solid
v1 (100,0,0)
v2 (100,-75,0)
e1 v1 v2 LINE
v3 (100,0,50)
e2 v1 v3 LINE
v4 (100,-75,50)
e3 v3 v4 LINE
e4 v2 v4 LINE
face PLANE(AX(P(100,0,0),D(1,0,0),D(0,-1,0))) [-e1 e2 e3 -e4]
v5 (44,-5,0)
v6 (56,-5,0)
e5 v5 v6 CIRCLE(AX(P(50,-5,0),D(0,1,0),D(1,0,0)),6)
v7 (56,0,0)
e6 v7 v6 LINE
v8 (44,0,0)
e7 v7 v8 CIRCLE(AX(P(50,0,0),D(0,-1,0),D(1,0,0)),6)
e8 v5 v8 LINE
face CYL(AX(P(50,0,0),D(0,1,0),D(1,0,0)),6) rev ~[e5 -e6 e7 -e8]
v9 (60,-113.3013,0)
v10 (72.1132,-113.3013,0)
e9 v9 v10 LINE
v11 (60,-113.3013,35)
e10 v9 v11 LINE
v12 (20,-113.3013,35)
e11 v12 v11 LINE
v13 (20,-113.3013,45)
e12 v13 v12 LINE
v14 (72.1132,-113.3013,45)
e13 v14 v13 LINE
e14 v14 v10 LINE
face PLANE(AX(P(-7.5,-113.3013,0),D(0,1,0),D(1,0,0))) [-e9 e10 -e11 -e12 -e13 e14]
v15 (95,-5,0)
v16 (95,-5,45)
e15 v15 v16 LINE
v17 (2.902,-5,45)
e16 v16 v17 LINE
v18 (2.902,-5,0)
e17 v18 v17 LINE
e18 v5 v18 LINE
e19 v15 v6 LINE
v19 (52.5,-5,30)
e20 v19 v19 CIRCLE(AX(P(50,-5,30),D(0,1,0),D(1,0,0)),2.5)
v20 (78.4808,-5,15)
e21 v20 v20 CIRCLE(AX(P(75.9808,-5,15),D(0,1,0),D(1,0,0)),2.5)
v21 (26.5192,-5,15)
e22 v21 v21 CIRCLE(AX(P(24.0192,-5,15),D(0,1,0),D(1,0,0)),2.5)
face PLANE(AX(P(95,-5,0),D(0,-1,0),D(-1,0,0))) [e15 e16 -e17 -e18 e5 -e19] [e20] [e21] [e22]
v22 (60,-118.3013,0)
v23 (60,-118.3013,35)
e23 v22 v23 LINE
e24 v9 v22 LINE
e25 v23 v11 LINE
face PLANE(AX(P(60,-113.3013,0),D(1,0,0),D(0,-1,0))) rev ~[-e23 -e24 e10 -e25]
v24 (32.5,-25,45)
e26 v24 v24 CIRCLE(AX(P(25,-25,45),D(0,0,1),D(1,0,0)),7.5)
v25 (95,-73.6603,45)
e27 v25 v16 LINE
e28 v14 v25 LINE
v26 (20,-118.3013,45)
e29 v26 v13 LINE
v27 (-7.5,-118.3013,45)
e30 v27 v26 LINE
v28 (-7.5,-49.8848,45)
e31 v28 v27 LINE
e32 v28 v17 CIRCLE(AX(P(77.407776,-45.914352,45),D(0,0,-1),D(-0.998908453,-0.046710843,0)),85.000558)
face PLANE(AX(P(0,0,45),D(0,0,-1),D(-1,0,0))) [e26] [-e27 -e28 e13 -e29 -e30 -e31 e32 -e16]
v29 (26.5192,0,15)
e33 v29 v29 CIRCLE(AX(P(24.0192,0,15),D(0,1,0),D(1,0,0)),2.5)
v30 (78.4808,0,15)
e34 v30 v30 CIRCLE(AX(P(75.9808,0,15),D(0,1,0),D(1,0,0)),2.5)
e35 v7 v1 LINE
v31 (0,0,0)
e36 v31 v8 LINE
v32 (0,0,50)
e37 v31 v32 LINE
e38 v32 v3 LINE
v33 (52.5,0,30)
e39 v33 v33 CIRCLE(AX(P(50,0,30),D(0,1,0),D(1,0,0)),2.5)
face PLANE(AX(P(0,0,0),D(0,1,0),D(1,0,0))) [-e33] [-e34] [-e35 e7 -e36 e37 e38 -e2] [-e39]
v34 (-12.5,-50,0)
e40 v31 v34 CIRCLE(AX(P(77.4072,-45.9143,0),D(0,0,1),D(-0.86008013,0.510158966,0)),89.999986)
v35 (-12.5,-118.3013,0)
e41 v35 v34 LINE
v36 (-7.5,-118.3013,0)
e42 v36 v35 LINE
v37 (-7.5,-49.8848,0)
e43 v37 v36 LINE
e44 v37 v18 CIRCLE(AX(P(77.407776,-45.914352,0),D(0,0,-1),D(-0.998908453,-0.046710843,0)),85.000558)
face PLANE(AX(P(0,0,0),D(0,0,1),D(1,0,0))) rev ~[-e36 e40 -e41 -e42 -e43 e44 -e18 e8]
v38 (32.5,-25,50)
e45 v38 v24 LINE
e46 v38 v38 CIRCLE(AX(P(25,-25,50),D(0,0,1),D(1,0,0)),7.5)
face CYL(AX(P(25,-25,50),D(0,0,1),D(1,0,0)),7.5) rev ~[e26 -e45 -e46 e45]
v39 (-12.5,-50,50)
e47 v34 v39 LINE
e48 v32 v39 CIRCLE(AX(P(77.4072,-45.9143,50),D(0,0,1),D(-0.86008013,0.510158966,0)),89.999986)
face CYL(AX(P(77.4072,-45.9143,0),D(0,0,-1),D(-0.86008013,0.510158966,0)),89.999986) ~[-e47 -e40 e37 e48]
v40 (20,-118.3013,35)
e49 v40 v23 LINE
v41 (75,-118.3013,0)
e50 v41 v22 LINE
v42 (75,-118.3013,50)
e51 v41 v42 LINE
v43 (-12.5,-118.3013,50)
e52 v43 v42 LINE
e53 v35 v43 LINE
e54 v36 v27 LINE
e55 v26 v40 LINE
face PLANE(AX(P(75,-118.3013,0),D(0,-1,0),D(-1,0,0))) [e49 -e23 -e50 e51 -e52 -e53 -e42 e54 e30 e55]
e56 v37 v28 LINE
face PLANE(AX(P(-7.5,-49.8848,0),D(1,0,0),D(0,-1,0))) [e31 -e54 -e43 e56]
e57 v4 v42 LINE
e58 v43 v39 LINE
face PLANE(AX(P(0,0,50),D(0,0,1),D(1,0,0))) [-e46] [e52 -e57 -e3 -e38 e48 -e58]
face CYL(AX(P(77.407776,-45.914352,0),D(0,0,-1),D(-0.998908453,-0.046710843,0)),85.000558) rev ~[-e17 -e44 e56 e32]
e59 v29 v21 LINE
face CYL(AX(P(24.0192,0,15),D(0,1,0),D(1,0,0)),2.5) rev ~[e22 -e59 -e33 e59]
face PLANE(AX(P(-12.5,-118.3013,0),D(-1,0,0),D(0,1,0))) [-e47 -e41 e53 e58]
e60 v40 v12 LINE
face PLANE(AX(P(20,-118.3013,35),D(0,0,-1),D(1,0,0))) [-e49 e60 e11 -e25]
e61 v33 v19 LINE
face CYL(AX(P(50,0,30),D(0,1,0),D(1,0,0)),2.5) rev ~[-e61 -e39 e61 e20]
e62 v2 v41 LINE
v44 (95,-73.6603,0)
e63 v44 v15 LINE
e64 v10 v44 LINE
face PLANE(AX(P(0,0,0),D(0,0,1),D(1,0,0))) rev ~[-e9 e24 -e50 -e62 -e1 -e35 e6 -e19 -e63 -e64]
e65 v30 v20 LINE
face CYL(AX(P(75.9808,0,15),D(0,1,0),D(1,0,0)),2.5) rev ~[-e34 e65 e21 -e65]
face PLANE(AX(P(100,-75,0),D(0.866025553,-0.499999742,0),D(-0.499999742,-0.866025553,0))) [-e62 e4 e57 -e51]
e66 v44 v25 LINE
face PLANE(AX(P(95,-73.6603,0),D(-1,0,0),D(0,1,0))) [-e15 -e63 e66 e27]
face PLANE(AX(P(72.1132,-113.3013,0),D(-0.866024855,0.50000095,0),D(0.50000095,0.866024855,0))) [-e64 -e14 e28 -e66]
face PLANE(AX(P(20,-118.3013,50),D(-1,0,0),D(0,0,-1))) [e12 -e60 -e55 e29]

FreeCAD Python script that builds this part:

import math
import FreeCAD as App
import Part
import Sketcher
from FreeCAD import Vector
Q = App.Units.Quantity

doc = App.newDocument("Part")
body = doc.addObject("PartDesign::Body", "Body")

# Sketch on XY plane
sketch1 = doc.addObject("Sketcher::SketchObject", "Sketch")
body.addObject(sketch1)
sketch1.AttachmentSupport = (doc.XY_Plane, [""])
sketch1.MapMode = "FlatFace"
sketch1.addGeometry(Part.LineSegment(Vector(100, 0, 0), Vector(0, 0, 0)), False)
sketch1.addGeometry(Part.ArcOfCircle(Part.Circle(Vector(77.4072, -45.9143, 0), Vector(0, 0, 1), 89.999986), math.radians(149.325581), math.radians(182.601932)), False)
sketch1.addGeometry(Part.LineSegment(Vector(-12.5, -50, 0), Vector(-12.5, -118.3013, 0)), False)
sketch1.addGeometry(Part.LineSegment(Vector(-12.5, -118.3013, 0), Vector(75, -118.3013, 0)), False)
sketch1.addGeometry(Part.LineSegment(Vector(75, -118.3013, 0), Vector(100, -75, 0)), False)
sketch1.addGeometry(Part.LineSegment(Vector(100, -75, 0), Vector(100, 0, 0)), False)
sketch1.addConstraint(Sketcher.Constraint("Coincident", 0, 2, 1, 1))
sketch1.addConstraint(Sketcher.Constraint("Coincident", 1, 2, 2, 1))
sketch1.addConstraint(Sketcher.Constraint("Coincident", 2, 2, 3, 1))
sketch1.addConstraint(Sketcher.Constraint("Coincident", 3, 2, 4, 1))
sketch1.addConstraint(Sketcher.Constraint("Coincident", 4, 2, 5, 1))
sketch1.addConstraint(Sketcher.Constraint("Coincident", 5, 2, 0, 1))
sketch1.addConstraint(Sketcher.Constraint("Horizontal", 0))
sketch1.addConstraint(Sketcher.Constraint("Vertical", 2))
sketch1.addConstraint(Sketcher.Constraint("Horizontal", 3))
sketch1.addConstraint(Sketcher.Constraint("Vertical", 5))
sketch1.addConstraint(Sketcher.Constraint("Coincident", 0, 2, -1, 1))
sketch1.addConstraint(Sketcher.Constraint("Radius", 1, Q("90 mm")))
sketch1.addConstraint(Sketcher.Constraint("DistanceX", 0, 2, 0, 1, Q("100 mm")))
sketch1.addConstraint(Sketcher.Constraint("DistanceY", 5, 1, 5, 2, Q("75 mm")))
sketch1.addConstraint(Sketcher.Constraint("Distance", 4, Q("50 mm")))
sketch1.addConstraint(Sketcher.Constraint("DistanceY", 1, 2, -1, 1, Q("50 mm")))
sketch1.addConstraint(Sketcher.Constraint("DistanceX", -1, 1, 3, 2, Q("75 mm")))
sketch1.addConstraint(Sketcher.Constraint("DistanceX", 1, 2, -1, 1, Q("12.5 mm")))
pad1 = doc.addObject("PartDesign::Pad", "Pad")
body.addObject(pad1)
pad1.Profile = sketch1
pad1.Length = 50

# Sketch on XY plane
sketch2 = doc.addObject("Sketcher::SketchObject", "Sketch001")
body.addObject(sketch2)
sketch2.AttachmentSupport = (doc.XY_Plane, [""])
sketch2.MapMode = "FlatFace"
sketch2.addGeometry(Part.LineSegment(Vector(95, -5, 0), Vector(95, -73.6603, 0)), False)
sketch2.addGeometry(Part.LineSegment(Vector(95, -73.6603, 0), Vector(72.1132, -113.3013, 0)), False)
sketch2.addGeometry(Part.LineSegment(Vector(72.1132, -113.3013, 0), Vector(-7.5, -113.3013, 0)), False)
sketch2.addGeometry(Part.LineSegment(Vector(-7.5, -113.3013, 0), Vector(-7.5, -49.8848, 0)), False)
sketch2.addGeometry(Part.ArcOfCircle(Part.Circle(Vector(77.4072, -45.9143, 0), Vector(0, 0, 1), 84.999985), math.radians(151.226747), math.radians(182.677362)), False)
sketch2.addGeometry(Part.LineSegment(Vector(2.902, -5, 0), Vector(95, -5, 0)), False)
sketch2.addConstraint(Sketcher.Constraint("Coincident", 0, 2, 1, 1))
sketch2.addConstraint(Sketcher.Constraint("Coincident", 1, 2, 2, 1))
sketch2.addConstraint(Sketcher.Constraint("Coincident", 2, 2, 3, 1))
sketch2.addConstraint(Sketcher.Constraint("Coincident", 3, 2, 4, 2))
sketch2.addConstraint(Sketcher.Constraint("Coincident", 4, 1, 5, 1))
sketch2.addConstraint(Sketcher.Constraint("Coincident", 5, 2, 0, 1))
sketch2.addConstraint(Sketcher.Constraint("Vertical", 0))
sketch2.addConstraint(Sketcher.Constraint("Horizontal", 2))
sketch2.addConstraint(Sketcher.Constraint("Vertical", 3))
sketch2.addConstraint(Sketcher.Constraint("Horizontal", 5))
sketch2.addConstraint(Sketcher.Constraint("DistanceY", 4, 1, -1, 1, Q("5 mm")))
sketch2.addConstraint(Sketcher.Constraint("Radius", 4, Q("85 mm")))
sketch2.addConstraint(Sketcher.Constraint("Angle", 1, Q("-120 deg")))
sketch2.addConstraint(Sketcher.Constraint("DistanceX", -1, 1, 0, 2, Q("95 mm")))
sketch2.addConstraint(Sketcher.Constraint("DistanceX", 2, 2, -1, 1, Q("7.5 mm")))
sketch2.addConstraint(Sketcher.Constraint("DistanceX", 5, 1, 5, 2, Q("92.098 mm")))
sketch2.addConstraint(Sketcher.Constraint("DistanceX", 2, 2, 2, 1, Q("79.6132 mm")))
sketch2.addConstraint(Sketcher.Constraint("DistanceY", 0, 2, 0, 1, Q("68.6603 mm")))
sketch2.addConstraint(Sketcher.Constraint("DistanceY", 3, 1, 3, 2, Q("63.4165 mm")))
pocket1 = doc.addObject("PartDesign::Pocket", "Pocket")
body.addObject(pocket1)
pocket1.Profile = sketch2
pocket1.Length = 45
pocket1.Reversed = True

# Sketch on XY plane
sketch3 = doc.addObject("Sketcher::SketchObject", "Sketch002")
body.addObject(sketch3)
sketch3.AttachmentSupport = (doc.XY_Plane, [""])
sketch3.MapMode = "FlatFace"
sketch3.addGeometry(Part.LineSegment(Vector(-7.5, -118.3013, 0), Vector(-7.5, -113.3013, 0)), False)
sketch3.addGeometry(Part.LineSegment(Vector(-7.5, -113.3013, 0), Vector(60, -113.3013, 0)), False)
sketch3.addGeometry(Part.LineSegment(Vector(60, -113.3013, 0), Vector(60, -118.3013, 0)), False)
sketch3.addGeometry(Part.LineSegment(Vector(60, -118.3013, 0), Vector(-7.5, -118.3013, 0)), False)
sketch3.addConstraint(Sketcher.Constraint("Coincident", 0, 2, 1, 1))
sketch3.addConstraint(Sketcher.Constraint("Coincident", 1, 2, 2, 1))
sketch3.addConstraint(Sketcher.Constraint("Coincident", 2, 2, 3, 1))
sketch3.addConstraint(Sketcher.Constraint("Coincident", 3, 2, 0, 1))
sketch3.addConstraint(Sketcher.Constraint("Vertical", 0))
sketch3.addConstraint(Sketcher.Constraint("Horizontal", 1))
sketch3.addConstraint(Sketcher.Constraint("Vertical", 2))
sketch3.addConstraint(Sketcher.Constraint("Horizontal", 3))
sketch3.addConstraint(Sketcher.Constraint("DistanceY", 0, 1, 0, 2, Q("5 mm")))
sketch3.addConstraint(Sketcher.Constraint("DistanceX", 1, 1, 1, 2, Q("67.5 mm")))
sketch3.addConstraint(Sketcher.Constraint("DistanceX", -1, 1, 1, 2, Q("60 mm")))
sketch3.addConstraint(Sketcher.Constraint("DistanceY", 0, 2, -1, 1, Q("113.3013 mm")))
pocket2 = doc.addObject("PartDesign::Pocket", "Pocket001")
body.addObject(pocket2)
pocket2.Profile = sketch3
pocket2.Length = 45
pocket2.Reversed = True

# Sketch on XZ plane
sketch4 = doc.addObject("Sketcher::SketchObject", "Sketch003")
body.addObject(sketch4)
sketch4.AttachmentSupport = (doc.XZ_Plane, [""])
sketch4.MapMode = "FlatFace"
sketch4.addGeometry(Part.Circle(Vector(50, 0, 0), Vector(0, 0, 1), 6), False)
sketch4.addConstraint(Sketcher.Constraint("PointOnObject", 0, 3, -1))
sketch4.addConstraint(Sketcher.Constraint("Diameter", 0, Q("12 mm")))
sketch4.addConstraint(Sketcher.Constraint("DistanceX", -1, 1, 0, 3, Q("50 mm")))
pocket3 = doc.addObject("PartDesign::Pocket", "Pocket002")
body.addObject(pocket3)
pocket3.Profile = sketch4
pocket3.Type = "ThroughAll"
pocket3.Reversed = True

# Sketch on XZ plane
sketch5 = doc.addObject("Sketcher::SketchObject", "Sketch004")
body.addObject(sketch5)
sketch5.AttachmentSupport = (doc.XZ_Plane, [""])
sketch5.MapMode = "FlatFace"
sketch5.addGeometry(Part.Circle(Vector(50, 30, 0), Vector(0, 0, 1), 2.5), False)
sketch5.addGeometry(Part.Circle(Vector(75.9808, 15, 0), Vector(0, 0, 1), 2.5), False)
sketch5.addGeometry(Part.Circle(Vector(24.0192, 15, 0), Vector(0, 0, 1), 2.5), False)
sketch5.addConstraint(Sketcher.Constraint("Equal", 0, 1))
sketch5.addConstraint(Sketcher.Constraint("Equal", 1, 2))
sketch5.addConstraint(Sketcher.Constraint("Horizontal", 1, 3, 2, 3))
sketch5.addConstraint(Sketcher.Constraint("Diameter", 0, Q("5 mm")))
sketch5.addConstraint(Sketcher.Constraint("DistanceX", -1, 1, 0, 3, Q("50 mm")))
sketch5.addConstraint(Sketcher.Constraint("DistanceY", -1, 1, 0, 3, Q("30 mm")))
sketch5.addConstraint(Sketcher.Constraint("DistanceY", -1, 1, 1, 3, Q("15 mm")))
sketch5.addConstraint(Sketcher.Constraint("DistanceX", -1, 1, 1, 3, Q("75.9808 mm")))
sketch5.addConstraint(Sketcher.Constraint("DistanceX", -1, 1, 2, 3, Q("24.0192 mm")))
pocket4 = doc.addObject("PartDesign::Pocket", "Pocket003")
body.addObject(pocket4)
pocket4.Profile = sketch5
pocket4.Length = 5
pocket4.Reversed = True

# Sketch on XY plane
sketch6 = doc.addObject("Sketcher::SketchObject", "Sketch005")
body.addObject(sketch6)
sketch6.AttachmentSupport = (doc.XY_Plane, [""])
sketch6.MapMode = "FlatFace"
sketch6.AttachmentOffset = App.Placement(Vector(0, 0, 50), App.Rotation())
sketch6.addGeometry(Part.Circle(Vector(25, -25, 0), Vector(0, 0, 1), 7.5), False)
sketch6.addConstraint(Sketcher.Constraint("Diameter", 0, Q("15 mm")))
sketch6.addConstraint(Sketcher.Constraint("DistanceX", -1, 1, 0, 3, Q("25 mm")))
sketch6.addConstraint(Sketcher.Constraint("DistanceY", 0, 3, -1, 1, Q("25 mm")))
pocket5 = doc.addObject("PartDesign::Pocket", "Pocket004")
body.addObject(pocket5)
pocket5.Profile = sketch6
pocket5.Length = 5

# Sketch on XZ plane
sketch7 = doc.addObject("Sketcher::SketchObject", "Sketch006")
body.addObject(sketch7)
sketch7.AttachmentSupport = (doc.XZ_Plane, [""])
sketch7.MapMode = "FlatFace"
sketch7.AttachmentOffset = App.Placement(Vector(0, 0, 118.3013), App.Rotation())
sketch7.addGeometry(Part.LineSegment(Vector(75, 35, 0), Vector(75, 50, 0)), False)
sketch7.addGeometry(Part.LineSegment(Vector(75, 50, 0), Vector(20, 50, 0)), False)
sketch7.addGeometry(Part.LineSegment(Vector(20, 50, 0), Vector(20, 35, 0)), False)
sketch7.addGeometry(Part.LineSegment(Vector(20, 35, 0), Vector(75, 35, 0)), False)
sketch7.addConstraint(Sketcher.Constraint("Coincident", 0, 2, 1, 1))
sketch7.addConstraint(Sketcher.Constraint("Coincident", 1, 2, 2, 1))
sketch7.addConstraint(Sketcher.Constraint("Coincident", 2, 2, 3, 1))
sketch7.addConstraint(Sketcher.Constraint("Coincident", 3, 2, 0, 1))
sketch7.addConstraint(Sketcher.Constraint("Vertical", 0))
sketch7.addConstraint(Sketcher.Constraint("Horizontal", 1))
sketch7.addConstraint(Sketcher.Constraint("Vertical", 2))
sketch7.addConstraint(Sketcher.Constraint("Horizontal", 3))
sketch7.addConstraint(Sketcher.Constraint("DistanceY", 0, 1, 0, 2, Q("15 mm")))
sketch7.addConstraint(Sketcher.Constraint("DistanceX", 1, 2, 1, 1, Q("55 mm")))
sketch7.addConstraint(Sketcher.Constraint("DistanceX", -1, 1, 0, 2, Q("75 mm")))
sketch7.addConstraint(Sketcher.Constraint("DistanceY", -1, 1, 0, 2, Q("50 mm")))
pad2 = doc.addObject("PartDesign::Pad", "Pad001")
body.addObject(pad2)
pad2.Profile = sketch7
pad2.Length = 5
pad2.Reversed = True

doc.recompute()
